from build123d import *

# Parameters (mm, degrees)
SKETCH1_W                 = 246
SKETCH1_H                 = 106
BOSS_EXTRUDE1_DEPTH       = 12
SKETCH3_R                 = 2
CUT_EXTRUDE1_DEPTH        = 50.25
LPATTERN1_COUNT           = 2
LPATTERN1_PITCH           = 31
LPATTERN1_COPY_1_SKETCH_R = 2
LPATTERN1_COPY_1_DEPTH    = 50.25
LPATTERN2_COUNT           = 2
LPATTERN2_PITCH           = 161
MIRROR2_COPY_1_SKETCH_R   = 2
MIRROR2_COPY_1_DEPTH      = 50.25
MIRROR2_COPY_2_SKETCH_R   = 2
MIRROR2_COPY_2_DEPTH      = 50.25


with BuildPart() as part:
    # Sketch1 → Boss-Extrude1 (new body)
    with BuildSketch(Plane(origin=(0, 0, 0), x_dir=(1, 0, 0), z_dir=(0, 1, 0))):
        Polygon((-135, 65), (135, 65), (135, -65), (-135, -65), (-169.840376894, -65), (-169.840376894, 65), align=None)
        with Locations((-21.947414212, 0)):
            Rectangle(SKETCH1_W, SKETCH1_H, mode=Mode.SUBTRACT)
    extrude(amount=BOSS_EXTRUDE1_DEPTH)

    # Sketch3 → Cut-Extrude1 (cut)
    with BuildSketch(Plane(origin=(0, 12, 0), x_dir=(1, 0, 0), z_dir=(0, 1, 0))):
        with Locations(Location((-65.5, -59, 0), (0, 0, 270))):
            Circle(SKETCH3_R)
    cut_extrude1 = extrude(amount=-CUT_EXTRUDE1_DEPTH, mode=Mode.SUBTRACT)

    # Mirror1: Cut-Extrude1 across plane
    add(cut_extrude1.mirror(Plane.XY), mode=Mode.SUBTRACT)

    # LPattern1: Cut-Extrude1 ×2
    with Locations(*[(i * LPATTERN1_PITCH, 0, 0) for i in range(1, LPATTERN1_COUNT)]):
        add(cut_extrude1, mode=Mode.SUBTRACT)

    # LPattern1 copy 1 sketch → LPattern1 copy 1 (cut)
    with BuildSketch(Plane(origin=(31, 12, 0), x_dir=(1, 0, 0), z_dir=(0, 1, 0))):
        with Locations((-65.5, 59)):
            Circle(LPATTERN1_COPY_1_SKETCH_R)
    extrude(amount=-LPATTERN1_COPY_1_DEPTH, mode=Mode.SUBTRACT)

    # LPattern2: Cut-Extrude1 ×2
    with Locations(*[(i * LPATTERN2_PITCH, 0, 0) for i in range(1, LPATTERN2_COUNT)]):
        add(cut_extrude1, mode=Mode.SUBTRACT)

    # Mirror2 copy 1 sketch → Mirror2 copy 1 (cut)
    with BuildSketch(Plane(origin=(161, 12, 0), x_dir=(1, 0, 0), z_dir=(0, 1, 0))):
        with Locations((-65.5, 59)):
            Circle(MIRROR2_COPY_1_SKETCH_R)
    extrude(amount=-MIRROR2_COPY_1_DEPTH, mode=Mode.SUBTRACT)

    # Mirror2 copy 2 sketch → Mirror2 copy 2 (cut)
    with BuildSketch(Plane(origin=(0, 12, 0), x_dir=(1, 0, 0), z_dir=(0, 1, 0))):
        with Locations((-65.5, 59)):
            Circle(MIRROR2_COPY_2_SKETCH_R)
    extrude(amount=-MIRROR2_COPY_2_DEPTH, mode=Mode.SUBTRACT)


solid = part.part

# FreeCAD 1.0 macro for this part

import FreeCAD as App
import Part
import Sketcher


def add_polygon(sketch, points):
    """Adds a closed chain of lines whose ends are joined by coincident constraints."""
    first, n = sketch.GeometryCount, len(points)
    for a, b in zip(points, points[1:] + points[:1]):
        sketch.addGeometry(Part.LineSegment(App.Vector(*a, 0), App.Vector(*b, 0)), False)
    for i in range(n):
        sketch.addConstraint(Sketcher.Constraint("Coincident", first + i, 2, first + (i + 1) % n, 1))

doc = App.newDocument("Part")
body = doc.addObject("PartDesign::Body", "Body")

sketch1 = body.newObject("Sketcher::SketchObject", "Sketch")
sketch1.AttachmentSupport = (doc.getObject("XZ_Plane"), [""])
sketch1.MapMode = "FlatFace"
add_polygon(sketch1, [(135, -65), (-169.840377, -65), (-169.840377, 65), (135, 65)])
add_polygon(sketch1, [(-144.947414, 53), (-144.947414, -53), (101.052586, -53), (101.052586, 53)])
sketch1.addConstraint([
    Sketcher.Constraint("Horizontal", 0),
    Sketcher.Constraint("Vertical", 1),
    Sketcher.Constraint("Horizontal", 2),
    Sketcher.Constraint("Vertical", 3),
    Sketcher.Constraint("Vertical", 4),
    Sketcher.Constraint("Horizontal", 5),
    Sketcher.Constraint("Vertical", 6),
    Sketcher.Constraint("Horizontal", 7),
    Sketcher.Constraint("DistanceX", 5, 1, 5, 2, 246.0),
    Sketcher.Constraint("DistanceY", 1, 1, 1, 2, 130.0),
    Sketcher.Constraint("DistanceY", 4, 2, 4, 1, 106.0),
    Sketcher.Constraint("DistanceY", 0, 2, -1, 1, 65.0),
    Sketcher.Constraint("DistanceX", -1, 1, 2, 2, 135.0),
    Sketcher.Constraint("DistanceY", 4, 2, -1, 1, 53.0),
    Sketcher.Constraint("DistanceX", 0, 2, 0, 1, 304.840377),
    Sketcher.Constraint("DistanceX", 4, 2, -1, 1, 144.947414),
])
pad1 = body.newObject("PartDesign::Pad", "Pad")
pad1.Profile = sketch1
pad1.Length = 12
pad1.Reversed = True

sketch2 = body.newObject("Sketcher::SketchObject", "Sketch001")
sketch2.AttachmentSupport = (doc.getObject("XZ_Plane"), [""])
sketch2.MapMode = "FlatFace"
sketch2.AttachmentOffset = App.Placement(App.Vector(0, 0, -12), App.Rotation())
sketch2.addGeometry(Part.Circle(App.Vector(-65.5, 59, 0), App.Vector(0, 0, 1), 2), False)
sketch2.addConstraint([
    Sketcher.Constraint("Diameter", 0, 4.0),
    Sketcher.Constraint("DistanceY", -1, 1, 0, 3, 59.0),
    Sketcher.Constraint("DistanceX", 0, 3, -1, 1, 65.5),
])
pocket1 = body.newObject("PartDesign::Pocket", "Pocket")
pocket1.Profile = sketch2
pocket1.Length = 50.25
pocket1.Reversed = True
doc.recompute()

mirrored = body.newObject("PartDesign::Mirrored", "Mirrored")
mirrored.Originals = [pocket1]
mirrored.MirrorPlane = (doc.getObject("XY_Plane"), [""])
body.Tip = mirrored
doc.recompute()

linearpattern = body.newObject("PartDesign::LinearPattern", "LinearPattern")
linearpattern.Originals = [pocket1]
linearpattern.Direction = (doc.getObject("X_Axis"), [""])
linearpattern.Mode = "offset"
linearpattern.Offset = 31
linearpattern.Occurrences = 2
body.Tip = linearpattern

sketch3 = body.newObject("Sketcher::SketchObject", "Sketch002")
sketch3.AttachmentSupport = (doc.getObject("XZ_Plane"), [""])
sketch3.MapMode = "FlatFace"
sketch3.AttachmentOffset = App.Placement(App.Vector(0, 0, -12), App.Rotation())
sketch3.addGeometry(Part.Circle(App.Vector(-34.5, -59, 0), App.Vector(0, 0, 1), 2), False)
sketch3.addConstraint([
    Sketcher.Constraint("Diameter", 0, 4.0),
    Sketcher.Constraint("DistanceY", 0, 3, -1, 1, 59.0),
    Sketcher.Constraint("DistanceX", 0, 3, -1, 1, 34.5),
])
pocket2 = body.newObject("PartDesign::Pocket", "Pocket001")
pocket2.Profile = sketch3
pocket2.Length = 50.25
pocket2.Reversed = True
doc.recompute()

linearpattern2 = body.newObject("PartDesign::LinearPattern", "LinearPattern001")
linearpattern2.Originals = [pocket1]
linearpattern2.Direction = (doc.getObject("X_Axis"), [""])
linearpattern2.Mode = "offset"
linearpattern2.Offset = 161
linearpattern2.Occurrences = 2
body.Tip = linearpattern2

sketch4 = body.newObject("Sketcher::SketchObject", "Sketch003")
sketch4.AttachmentSupport = (doc.getObject("XZ_Plane"), [""])
sketch4.MapMode = "FlatFace"
sketch4.AttachmentOffset = App.Placement(App.Vector(0, 0, -12), App.Rotation())
sketch4.addGeometry(Part.Circle(App.Vector(95.5, -59, 0), App.Vector(0, 0, 1), 2), False)
sketch4.addConstraint([
    Sketcher.Constraint("Diameter", 0, 4.0),
    Sketcher.Constraint("DistanceY", 0, 3, -1, 1, 59.0),
    Sketcher.Constraint("DistanceX", -1, 1, 0, 3, 95.5),
])
pocket3 = body.newObject("PartDesign::Pocket", "Pocket002")
pocket3.Profile = sketch4
pocket3.Length = 50.25
pocket3.Reversed = True

sketch5 = body.newObject("Sketcher::SketchObject", "Sketch004")
sketch5.AttachmentSupport = (doc.getObject("XZ_Plane"), [""])
sketch5.MapMode = "FlatFace"
sketch5.AttachmentOffset = App.Placement(App.Vector(0, 0, -12), App.Rotation())
sketch5.addGeometry(Part.Circle(App.Vector(-65.5, -59, 0), App.Vector(0, 0, 1), 2), False)
sketch5.addConstraint([
    Sketcher.Constraint("Diameter", 0, 4.0),
    Sketcher.Constraint("DistanceY", 0, 3, -1, 1, 59.0),
    Sketcher.Constraint("DistanceX", 0, 3, -1, 1, 65.5),
])
pocket4 = body.newObject("PartDesign::Pocket", "Pocket003")
pocket4.Profile = sketch5
pocket4.Length = 50.25
pocket4.Reversed = True

doc.recompute()
